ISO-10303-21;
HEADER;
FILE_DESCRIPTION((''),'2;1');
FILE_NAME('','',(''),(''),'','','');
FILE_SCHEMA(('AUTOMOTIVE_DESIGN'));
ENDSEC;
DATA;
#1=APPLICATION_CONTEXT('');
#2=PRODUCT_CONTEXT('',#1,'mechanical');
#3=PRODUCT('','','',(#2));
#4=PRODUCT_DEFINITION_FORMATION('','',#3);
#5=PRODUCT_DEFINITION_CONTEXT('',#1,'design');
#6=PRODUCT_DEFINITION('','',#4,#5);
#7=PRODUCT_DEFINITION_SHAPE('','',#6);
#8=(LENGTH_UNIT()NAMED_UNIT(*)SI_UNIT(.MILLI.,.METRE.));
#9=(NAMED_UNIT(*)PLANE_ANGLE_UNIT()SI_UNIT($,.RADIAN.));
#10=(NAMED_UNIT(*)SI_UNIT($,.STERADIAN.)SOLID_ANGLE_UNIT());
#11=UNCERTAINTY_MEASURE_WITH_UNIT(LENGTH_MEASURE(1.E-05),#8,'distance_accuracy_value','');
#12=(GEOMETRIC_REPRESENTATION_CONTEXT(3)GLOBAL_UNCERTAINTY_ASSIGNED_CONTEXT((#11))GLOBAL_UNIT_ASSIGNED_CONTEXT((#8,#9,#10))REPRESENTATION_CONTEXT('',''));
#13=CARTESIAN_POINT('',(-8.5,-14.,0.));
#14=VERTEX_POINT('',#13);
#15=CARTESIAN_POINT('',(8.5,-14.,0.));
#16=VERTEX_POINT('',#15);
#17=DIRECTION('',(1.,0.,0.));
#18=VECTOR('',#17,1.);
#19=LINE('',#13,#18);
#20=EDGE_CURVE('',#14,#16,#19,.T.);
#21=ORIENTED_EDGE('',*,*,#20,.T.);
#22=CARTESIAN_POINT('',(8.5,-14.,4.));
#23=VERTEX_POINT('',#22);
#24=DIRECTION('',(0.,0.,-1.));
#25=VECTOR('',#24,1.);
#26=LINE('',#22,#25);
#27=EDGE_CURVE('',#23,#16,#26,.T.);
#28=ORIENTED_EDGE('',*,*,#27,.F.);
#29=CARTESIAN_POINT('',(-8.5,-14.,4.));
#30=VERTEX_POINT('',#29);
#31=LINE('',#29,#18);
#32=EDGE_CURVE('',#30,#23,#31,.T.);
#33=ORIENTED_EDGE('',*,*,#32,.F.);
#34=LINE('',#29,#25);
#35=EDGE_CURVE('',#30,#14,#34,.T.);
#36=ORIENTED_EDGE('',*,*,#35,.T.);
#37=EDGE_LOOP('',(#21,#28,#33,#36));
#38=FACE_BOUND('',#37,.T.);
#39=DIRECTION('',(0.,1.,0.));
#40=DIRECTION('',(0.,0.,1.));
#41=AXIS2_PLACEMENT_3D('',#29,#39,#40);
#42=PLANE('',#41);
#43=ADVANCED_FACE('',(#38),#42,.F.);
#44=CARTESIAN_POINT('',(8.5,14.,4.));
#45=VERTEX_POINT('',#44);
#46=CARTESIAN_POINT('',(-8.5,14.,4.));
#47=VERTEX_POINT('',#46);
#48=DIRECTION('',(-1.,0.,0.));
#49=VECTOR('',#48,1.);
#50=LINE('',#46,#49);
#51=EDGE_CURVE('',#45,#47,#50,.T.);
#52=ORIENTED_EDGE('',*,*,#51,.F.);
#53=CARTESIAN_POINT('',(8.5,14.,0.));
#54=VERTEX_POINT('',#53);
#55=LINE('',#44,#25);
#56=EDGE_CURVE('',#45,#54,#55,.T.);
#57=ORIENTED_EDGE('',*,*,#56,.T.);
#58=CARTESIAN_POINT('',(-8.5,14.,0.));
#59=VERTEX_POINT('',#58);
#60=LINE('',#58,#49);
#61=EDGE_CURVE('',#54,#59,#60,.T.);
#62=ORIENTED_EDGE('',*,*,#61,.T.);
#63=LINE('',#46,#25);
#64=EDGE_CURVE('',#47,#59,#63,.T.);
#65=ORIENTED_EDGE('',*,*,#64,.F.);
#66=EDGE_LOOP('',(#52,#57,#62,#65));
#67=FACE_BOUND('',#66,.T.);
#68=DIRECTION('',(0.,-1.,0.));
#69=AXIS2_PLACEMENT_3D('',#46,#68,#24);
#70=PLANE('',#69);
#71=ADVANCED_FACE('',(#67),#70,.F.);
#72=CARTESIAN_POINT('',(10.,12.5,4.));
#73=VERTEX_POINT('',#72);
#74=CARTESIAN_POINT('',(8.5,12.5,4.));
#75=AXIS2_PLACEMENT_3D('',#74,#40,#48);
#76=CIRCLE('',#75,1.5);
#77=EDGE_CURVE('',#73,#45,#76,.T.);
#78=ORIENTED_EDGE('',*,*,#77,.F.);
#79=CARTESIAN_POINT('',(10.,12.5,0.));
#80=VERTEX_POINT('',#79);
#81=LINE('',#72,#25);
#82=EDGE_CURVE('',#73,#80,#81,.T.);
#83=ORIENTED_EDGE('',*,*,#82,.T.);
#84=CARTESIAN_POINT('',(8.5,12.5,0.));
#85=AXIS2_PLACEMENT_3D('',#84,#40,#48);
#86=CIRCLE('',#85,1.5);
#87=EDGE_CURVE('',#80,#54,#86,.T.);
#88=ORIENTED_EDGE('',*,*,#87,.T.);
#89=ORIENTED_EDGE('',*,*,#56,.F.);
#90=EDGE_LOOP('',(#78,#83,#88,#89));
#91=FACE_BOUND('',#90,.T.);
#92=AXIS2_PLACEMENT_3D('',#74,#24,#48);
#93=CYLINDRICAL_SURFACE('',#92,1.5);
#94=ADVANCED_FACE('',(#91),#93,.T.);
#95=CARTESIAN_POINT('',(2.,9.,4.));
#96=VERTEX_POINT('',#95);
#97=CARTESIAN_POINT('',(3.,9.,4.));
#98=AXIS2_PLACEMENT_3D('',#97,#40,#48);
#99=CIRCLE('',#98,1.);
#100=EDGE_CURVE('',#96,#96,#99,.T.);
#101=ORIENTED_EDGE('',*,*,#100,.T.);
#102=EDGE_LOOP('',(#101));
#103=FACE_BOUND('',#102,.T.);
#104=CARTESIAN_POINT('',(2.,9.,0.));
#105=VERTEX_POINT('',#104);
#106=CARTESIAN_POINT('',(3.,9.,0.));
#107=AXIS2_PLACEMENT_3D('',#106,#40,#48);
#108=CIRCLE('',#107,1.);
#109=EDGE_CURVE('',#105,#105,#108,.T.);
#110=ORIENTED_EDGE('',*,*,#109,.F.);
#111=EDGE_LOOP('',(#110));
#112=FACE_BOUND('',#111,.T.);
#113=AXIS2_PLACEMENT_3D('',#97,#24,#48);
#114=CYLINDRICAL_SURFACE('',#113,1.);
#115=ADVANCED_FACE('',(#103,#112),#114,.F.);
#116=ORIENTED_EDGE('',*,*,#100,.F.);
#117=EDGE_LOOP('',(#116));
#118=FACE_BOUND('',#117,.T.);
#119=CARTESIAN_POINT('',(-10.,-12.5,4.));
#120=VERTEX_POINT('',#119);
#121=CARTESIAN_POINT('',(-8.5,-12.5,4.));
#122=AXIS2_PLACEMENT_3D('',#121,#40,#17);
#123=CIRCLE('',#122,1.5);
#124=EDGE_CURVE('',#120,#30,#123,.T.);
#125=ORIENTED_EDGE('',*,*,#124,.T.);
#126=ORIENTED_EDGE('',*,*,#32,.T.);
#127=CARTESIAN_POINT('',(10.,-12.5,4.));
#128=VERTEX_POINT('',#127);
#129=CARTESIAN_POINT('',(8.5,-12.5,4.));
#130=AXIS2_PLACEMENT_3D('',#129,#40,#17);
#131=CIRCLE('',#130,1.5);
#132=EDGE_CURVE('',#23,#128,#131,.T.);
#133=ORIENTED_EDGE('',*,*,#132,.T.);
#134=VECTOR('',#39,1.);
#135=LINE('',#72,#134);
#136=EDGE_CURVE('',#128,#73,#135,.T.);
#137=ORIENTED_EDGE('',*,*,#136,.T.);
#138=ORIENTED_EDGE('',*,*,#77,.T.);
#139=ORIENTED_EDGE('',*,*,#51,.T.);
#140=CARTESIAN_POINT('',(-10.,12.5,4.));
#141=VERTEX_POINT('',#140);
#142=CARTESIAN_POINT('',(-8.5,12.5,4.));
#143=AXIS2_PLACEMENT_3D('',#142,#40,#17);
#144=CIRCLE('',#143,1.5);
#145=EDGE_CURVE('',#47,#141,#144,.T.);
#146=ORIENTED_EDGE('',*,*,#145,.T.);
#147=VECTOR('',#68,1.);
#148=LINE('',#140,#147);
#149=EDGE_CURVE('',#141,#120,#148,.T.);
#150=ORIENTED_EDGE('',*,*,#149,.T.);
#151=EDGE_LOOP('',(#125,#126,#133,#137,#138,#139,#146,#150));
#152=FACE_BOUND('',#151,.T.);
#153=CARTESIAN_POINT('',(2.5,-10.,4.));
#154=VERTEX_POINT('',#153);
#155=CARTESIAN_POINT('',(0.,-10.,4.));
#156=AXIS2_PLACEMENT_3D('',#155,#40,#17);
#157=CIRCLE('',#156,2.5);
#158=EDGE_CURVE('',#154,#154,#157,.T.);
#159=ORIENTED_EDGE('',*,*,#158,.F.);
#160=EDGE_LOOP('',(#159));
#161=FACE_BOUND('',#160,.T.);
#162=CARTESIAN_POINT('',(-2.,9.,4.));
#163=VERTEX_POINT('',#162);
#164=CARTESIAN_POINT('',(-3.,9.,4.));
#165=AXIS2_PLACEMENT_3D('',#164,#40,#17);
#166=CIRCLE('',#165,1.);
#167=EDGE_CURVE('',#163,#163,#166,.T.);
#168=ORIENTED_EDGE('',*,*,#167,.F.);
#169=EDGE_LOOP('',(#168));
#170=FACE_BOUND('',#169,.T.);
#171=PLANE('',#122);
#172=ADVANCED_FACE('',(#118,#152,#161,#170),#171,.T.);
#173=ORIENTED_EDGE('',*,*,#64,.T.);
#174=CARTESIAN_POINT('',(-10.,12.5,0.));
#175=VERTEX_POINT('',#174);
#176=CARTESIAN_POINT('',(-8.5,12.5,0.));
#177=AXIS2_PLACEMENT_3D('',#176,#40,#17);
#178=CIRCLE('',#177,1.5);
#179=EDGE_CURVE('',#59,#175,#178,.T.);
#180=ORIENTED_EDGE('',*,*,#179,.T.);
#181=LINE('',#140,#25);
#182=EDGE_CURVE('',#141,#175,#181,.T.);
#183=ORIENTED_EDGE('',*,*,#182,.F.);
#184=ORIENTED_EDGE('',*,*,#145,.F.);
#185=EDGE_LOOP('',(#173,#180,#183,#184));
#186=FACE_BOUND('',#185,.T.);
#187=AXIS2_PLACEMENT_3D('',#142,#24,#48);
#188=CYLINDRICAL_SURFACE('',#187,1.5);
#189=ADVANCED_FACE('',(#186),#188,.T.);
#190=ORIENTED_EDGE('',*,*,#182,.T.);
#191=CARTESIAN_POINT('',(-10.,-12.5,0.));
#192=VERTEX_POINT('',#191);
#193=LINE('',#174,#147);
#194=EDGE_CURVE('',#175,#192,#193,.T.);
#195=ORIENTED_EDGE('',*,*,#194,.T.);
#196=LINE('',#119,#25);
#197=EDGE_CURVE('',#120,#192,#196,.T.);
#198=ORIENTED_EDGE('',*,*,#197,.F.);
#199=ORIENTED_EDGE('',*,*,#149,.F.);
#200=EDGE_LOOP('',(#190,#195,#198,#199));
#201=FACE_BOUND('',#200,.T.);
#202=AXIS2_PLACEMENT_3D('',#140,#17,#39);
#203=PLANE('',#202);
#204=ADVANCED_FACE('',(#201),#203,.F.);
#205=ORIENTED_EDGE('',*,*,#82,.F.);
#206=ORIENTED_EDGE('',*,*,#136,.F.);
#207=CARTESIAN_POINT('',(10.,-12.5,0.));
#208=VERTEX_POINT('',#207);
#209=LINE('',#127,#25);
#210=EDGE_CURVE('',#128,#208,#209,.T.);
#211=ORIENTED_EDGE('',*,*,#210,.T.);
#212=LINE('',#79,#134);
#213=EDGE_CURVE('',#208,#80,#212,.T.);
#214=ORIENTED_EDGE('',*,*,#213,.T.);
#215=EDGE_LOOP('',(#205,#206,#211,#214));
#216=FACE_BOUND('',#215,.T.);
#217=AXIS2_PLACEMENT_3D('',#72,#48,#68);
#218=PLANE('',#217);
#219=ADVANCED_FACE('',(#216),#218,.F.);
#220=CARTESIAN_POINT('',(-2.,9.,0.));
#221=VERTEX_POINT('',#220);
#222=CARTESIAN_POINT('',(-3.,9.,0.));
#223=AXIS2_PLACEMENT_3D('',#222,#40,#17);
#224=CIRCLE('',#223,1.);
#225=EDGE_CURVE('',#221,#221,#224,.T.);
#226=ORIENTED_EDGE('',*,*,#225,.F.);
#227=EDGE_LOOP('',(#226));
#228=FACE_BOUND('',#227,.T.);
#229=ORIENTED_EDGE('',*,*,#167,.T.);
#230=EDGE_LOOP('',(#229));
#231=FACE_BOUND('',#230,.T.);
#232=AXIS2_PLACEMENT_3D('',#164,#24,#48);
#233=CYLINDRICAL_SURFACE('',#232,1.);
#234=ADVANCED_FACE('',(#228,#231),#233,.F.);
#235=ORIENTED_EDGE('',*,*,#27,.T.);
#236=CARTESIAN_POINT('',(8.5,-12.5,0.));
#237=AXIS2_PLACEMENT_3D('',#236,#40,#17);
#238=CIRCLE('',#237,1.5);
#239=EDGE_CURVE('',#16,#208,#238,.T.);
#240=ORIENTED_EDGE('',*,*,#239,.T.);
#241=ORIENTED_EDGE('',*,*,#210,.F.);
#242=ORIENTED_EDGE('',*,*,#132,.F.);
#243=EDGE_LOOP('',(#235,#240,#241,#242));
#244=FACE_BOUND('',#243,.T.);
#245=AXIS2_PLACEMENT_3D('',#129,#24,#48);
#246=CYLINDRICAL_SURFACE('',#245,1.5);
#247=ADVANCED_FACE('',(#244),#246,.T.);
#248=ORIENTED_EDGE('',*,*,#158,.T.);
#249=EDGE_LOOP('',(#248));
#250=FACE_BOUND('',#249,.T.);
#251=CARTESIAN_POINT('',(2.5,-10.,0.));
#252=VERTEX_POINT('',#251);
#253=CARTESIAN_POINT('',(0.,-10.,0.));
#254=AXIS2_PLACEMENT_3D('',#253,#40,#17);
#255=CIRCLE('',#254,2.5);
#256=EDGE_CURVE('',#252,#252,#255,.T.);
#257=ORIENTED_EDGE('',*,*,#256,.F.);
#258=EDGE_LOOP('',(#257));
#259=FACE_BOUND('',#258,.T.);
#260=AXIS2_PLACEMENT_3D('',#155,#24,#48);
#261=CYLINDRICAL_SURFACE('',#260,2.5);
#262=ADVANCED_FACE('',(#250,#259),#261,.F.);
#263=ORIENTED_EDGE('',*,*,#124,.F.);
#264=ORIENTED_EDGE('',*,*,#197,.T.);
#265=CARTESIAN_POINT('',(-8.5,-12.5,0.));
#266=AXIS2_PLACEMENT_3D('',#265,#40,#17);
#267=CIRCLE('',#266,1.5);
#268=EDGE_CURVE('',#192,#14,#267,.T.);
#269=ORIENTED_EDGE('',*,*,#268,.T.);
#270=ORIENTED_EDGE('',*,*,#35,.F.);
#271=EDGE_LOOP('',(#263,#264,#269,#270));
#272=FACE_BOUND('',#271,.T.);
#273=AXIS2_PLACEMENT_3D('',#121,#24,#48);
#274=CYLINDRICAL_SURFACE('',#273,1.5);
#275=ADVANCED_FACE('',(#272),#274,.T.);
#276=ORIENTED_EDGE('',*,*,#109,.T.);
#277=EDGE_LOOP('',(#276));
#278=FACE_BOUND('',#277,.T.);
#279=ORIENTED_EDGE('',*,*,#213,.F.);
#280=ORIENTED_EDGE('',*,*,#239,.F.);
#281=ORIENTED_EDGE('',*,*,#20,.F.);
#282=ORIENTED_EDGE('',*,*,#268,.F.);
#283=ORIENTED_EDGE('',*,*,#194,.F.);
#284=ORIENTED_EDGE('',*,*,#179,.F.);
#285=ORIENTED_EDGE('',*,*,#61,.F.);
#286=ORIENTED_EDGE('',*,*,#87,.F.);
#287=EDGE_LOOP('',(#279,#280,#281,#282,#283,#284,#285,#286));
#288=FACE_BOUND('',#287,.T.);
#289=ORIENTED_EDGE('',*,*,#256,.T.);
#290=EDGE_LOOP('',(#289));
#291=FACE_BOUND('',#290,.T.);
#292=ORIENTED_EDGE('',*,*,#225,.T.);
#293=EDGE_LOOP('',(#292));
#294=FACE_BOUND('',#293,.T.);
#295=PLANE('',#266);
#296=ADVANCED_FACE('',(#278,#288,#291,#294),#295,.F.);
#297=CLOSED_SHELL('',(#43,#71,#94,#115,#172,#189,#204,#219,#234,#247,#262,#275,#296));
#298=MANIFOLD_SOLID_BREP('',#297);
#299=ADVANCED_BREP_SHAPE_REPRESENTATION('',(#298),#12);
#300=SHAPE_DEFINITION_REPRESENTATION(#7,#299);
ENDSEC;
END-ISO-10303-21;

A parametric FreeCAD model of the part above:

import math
import FreeCAD as App
import Part
import Sketcher
from FreeCAD import Vector
Q = App.Units.Quantity

doc = App.newDocument("Part")
params = doc.addObject("Spreadsheet::Sheet", "Params")
for row, (alias, value) in enumerate([
    ("sketch1_diameter", "5 mm"),
    ("sketch1_diameter2", "2 mm"),
    ("sketch1_radius", "1.5 mm"),
    ("sketch1_width", "17 mm"),
    ("sketch1_height", "25 mm"),
    ("pad1_length", "4 mm"),
], start=1):
    params.set(f"A{row}", alias)
    params.set(f"B{row}", "=" + value)
    params.setAlias(f"B{row}", alias)

body = doc.addObject("PartDesign::Body", "Body")

sketch1 = body.newObject("Sketcher::SketchObject", "Sketch")
sketch1.AttachmentSupport = (doc.getObject("XY_Plane"), [""])
sketch1.MapMode = "FlatFace"
sketch1.addGeometry([
    Part.LineSegment(Vector(8.5, 14, 0), Vector(-8.5, 14, 0)),
    Part.ArcOfCircle(Part.Circle(Vector(-8.5, 12.5, 0), Vector(0, 0, 1), 1.5), math.radians(90), math.radians(180)),
    Part.LineSegment(Vector(-10, 12.5, 0), Vector(-10, -12.5, 0)),
    Part.ArcOfCircle(Part.Circle(Vector(-8.5, -12.5, 0), Vector(0, 0, 1), 1.5), math.radians(180), math.radians(270)),
    Part.LineSegment(Vector(-8.5, -14, 0), Vector(8.5, -14, 0)),
    Part.ArcOfCircle(Part.Circle(Vector(8.5, -12.5, 0), Vector(0, 0, 1), 1.5), math.radians(-90), math.radians(0)),
    Part.LineSegment(Vector(10, -12.5, 0), Vector(10, 12.5, 0)),
    Part.ArcOfCircle(Part.Circle(Vector(8.5, 12.5, 0), Vector(0, 0, 1), 1.5), math.radians(0), math.radians(90)),
    Part.Circle(Vector(0, -10, 0), Vector(0, 0, 1), 2.5),
    Part.Circle(Vector(3, 9, 0), Vector(0, 0, 1), 1),
    Part.Circle(Vector(-3, 9, 0), Vector(0, 0, 1), 1),
], False)
sketch1.addConstraint([
    Sketcher.Constraint("Tangent", 0, 2, 1, 1),
    Sketcher.Constraint("Tangent", 1, 2, 2, 1),
    Sketcher.Constraint("Tangent", 2, 2, 3, 1),
    Sketcher.Constraint("Tangent", 3, 2, 4, 1),
    Sketcher.Constraint("Tangent", 4, 2, 5, 1),
    Sketcher.Constraint("Tangent", 5, 2, 6, 1),
    Sketcher.Constraint("Tangent", 6, 2, 7, 1),
    Sketcher.Constraint("Tangent", 7, 2, 0, 1),
    Sketcher.Constraint("Horizontal", 0),
    Sketcher.Constraint("Vertical", 2),
    Sketcher.Constraint("Horizontal", 4),
    Sketcher.Constraint("Vertical", 6),
    Sketcher.Constraint("Equal", 1, 3),
    Sketcher.Constraint("Equal", 3, 5),
    Sketcher.Constraint("Equal", 5, 7),
    Sketcher.Constraint("Equal", 9, 10),
    Sketcher.Constraint("Symmetric", 1, 3, 5, 3, -1, 1),
    Sketcher.Constraint("Symmetric", 9, 3, 10, 3, -2),
    Sketcher.Constraint("PointOnObject", 8, 3, -2),
    Sketcher.Constraint("Diameter", 8, Q("5 mm")),
    Sketcher.Constraint("Diameter", 9, Q("2 mm")),
    Sketcher.Constraint("Radius", 1, Q("1.5 mm")),
    Sketcher.Constraint("DistanceX", 0, 2, 0, 1, Q("17 mm")),
    Sketcher.Constraint("DistanceY", 2, 2, 2, 1, Q("25 mm")),
    Sketcher.Constraint("DistanceY", 8, 3, -1, 1, Q("10 mm")),
    Sketcher.Constraint("DistanceX", -1, 1, 9, 3, Q("3 mm")),
    Sketcher.Constraint("DistanceY", -1, 1, 9, 3, Q("9 mm")),
])
sketch1.setExpression("Constraints[19]", "Params.sketch1_diameter")
sketch1.setExpression("Constraints[20]", "Params.sketch1_diameter2")
sketch1.setExpression("Constraints[21]", "Params.sketch1_radius")
sketch1.setExpression("Constraints[22]", "Params.sketch1_width")
sketch1.setExpression("Constraints[23]", "Params.sketch1_height")
pad1 = body.newObject("PartDesign::Pad", "Pad")
pad1.Profile = sketch1
pad1.setExpression("Length", "Params.pad1_length")

doc.recompute()
